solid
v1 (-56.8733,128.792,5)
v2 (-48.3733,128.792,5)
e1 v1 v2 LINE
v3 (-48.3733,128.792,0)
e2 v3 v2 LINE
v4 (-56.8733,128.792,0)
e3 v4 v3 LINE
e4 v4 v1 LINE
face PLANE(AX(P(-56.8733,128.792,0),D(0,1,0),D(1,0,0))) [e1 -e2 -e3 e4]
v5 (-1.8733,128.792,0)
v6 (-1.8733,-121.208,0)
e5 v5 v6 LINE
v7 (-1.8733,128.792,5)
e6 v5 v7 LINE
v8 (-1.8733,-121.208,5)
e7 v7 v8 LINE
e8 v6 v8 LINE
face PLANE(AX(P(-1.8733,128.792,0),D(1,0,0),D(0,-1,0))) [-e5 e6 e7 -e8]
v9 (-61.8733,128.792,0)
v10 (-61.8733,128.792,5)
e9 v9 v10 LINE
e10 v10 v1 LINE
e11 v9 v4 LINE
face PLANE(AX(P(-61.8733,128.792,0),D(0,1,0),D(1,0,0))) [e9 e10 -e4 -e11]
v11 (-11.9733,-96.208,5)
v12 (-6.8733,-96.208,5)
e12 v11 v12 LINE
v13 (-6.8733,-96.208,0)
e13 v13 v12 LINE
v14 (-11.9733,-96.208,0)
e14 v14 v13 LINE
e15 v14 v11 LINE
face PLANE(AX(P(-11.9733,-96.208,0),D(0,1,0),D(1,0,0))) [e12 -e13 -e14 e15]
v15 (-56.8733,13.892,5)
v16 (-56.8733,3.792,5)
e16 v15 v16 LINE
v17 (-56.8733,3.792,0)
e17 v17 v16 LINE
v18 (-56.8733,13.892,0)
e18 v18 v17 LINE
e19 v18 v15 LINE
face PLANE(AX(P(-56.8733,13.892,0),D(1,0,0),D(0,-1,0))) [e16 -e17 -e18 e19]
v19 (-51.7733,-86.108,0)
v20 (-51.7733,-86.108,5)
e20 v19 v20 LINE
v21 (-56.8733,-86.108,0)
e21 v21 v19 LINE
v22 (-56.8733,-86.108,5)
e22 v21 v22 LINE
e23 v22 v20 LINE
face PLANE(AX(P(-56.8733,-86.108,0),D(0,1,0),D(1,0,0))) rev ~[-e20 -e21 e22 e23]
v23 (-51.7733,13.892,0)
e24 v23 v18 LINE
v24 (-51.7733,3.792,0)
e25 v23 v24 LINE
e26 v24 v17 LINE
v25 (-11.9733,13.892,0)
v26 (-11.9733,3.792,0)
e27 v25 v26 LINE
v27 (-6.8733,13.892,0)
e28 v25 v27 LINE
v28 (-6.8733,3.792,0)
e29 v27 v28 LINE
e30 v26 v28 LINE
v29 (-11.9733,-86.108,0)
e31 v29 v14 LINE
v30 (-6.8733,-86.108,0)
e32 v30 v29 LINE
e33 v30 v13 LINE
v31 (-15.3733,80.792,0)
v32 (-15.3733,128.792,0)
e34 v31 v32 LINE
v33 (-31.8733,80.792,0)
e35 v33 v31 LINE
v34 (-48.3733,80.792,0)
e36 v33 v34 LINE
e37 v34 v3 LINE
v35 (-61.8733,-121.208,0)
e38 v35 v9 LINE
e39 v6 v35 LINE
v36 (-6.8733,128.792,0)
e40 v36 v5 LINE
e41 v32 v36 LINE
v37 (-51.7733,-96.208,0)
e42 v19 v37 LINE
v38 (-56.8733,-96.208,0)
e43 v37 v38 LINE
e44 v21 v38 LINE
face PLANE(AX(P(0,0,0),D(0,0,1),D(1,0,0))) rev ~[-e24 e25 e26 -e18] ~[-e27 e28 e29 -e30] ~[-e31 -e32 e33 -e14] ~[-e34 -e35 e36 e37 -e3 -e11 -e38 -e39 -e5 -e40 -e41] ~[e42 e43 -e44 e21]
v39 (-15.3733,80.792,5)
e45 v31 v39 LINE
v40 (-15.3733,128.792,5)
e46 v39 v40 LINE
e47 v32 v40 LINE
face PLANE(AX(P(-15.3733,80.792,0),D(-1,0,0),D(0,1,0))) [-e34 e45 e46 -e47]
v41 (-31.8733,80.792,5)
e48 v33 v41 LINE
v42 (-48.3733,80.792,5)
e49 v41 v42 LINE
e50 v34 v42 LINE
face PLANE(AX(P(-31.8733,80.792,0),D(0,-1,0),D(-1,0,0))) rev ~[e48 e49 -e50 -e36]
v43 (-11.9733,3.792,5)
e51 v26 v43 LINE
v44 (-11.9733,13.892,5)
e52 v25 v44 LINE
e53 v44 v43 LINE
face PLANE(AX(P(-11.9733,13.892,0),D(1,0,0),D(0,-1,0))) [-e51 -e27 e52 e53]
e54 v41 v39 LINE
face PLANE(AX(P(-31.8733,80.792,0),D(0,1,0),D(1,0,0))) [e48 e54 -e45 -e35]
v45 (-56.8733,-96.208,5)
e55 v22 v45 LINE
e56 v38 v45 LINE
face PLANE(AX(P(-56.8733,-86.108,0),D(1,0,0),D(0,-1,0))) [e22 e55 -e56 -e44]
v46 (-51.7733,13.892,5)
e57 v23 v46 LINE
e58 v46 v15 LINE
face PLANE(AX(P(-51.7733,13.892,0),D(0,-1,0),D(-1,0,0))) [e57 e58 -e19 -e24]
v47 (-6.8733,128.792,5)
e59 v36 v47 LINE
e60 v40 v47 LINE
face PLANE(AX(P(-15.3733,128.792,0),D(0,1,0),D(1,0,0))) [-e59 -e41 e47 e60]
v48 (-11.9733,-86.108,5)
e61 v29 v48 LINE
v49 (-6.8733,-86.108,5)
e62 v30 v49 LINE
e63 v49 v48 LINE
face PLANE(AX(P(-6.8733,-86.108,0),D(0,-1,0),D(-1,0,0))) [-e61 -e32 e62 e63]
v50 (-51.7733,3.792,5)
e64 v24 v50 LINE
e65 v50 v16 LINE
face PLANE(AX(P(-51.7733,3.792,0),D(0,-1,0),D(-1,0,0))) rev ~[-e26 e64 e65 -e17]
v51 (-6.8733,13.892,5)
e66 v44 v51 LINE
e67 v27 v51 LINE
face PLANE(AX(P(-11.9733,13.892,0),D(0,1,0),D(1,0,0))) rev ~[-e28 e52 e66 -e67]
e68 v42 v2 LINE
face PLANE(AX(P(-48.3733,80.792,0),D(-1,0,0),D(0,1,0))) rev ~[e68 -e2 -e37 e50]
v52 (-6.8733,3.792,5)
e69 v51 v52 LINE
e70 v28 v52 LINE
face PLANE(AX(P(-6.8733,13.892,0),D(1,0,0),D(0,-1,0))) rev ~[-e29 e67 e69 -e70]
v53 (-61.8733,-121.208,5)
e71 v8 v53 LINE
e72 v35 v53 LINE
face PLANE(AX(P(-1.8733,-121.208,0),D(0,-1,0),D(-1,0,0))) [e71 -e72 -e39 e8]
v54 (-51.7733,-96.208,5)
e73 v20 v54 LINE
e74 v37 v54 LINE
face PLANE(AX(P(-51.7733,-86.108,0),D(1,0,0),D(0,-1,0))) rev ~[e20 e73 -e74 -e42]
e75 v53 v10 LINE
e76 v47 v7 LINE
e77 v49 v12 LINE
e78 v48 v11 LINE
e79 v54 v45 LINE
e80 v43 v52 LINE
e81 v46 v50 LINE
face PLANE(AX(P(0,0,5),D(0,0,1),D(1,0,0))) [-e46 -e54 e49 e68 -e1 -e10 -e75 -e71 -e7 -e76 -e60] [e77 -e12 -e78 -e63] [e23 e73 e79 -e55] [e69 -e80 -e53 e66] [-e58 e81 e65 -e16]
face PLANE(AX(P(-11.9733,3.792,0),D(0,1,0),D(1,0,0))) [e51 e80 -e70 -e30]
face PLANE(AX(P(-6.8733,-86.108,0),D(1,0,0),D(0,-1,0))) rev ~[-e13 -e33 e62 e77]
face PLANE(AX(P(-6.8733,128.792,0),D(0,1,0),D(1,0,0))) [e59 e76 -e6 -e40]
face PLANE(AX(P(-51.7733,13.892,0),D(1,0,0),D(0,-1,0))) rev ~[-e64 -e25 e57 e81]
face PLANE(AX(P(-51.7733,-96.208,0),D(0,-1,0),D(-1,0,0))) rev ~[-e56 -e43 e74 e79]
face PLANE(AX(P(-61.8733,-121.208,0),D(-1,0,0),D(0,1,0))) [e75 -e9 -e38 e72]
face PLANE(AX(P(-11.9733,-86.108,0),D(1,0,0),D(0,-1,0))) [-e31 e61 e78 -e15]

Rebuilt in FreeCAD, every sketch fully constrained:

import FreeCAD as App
import Part
import Sketcher

V = App.Vector

doc = App.newDocument("Part")
params = doc.addObject("Spreadsheet::Sheet", "Params")
for row, (alias, value) in enumerate([
    ("sketch1_width", "60 mm"),
    ("sketch1_height", "48 mm"),
    ("sketch1_width2", "33 mm"),
    ("sketch1_height2", "250 mm"),
    ("sketch1_height3", "10.1 mm"),
    ("pad1_length", "5 mm"),
], start=1):
    params.set(f"A{row}", alias)
    params.set(f"B{row}", "=" + value)
    params.setAlias(f"B{row}", alias)

body = doc.addObject("PartDesign::Body", "Body")

# Sketch on XY plane
sketch1 = doc.addObject("Sketcher::SketchObject", "Sketch")
body.addObject(sketch1)
sketch1.AttachmentSupport = (doc.XY_Plane, [""])
sketch1.MapMode = "FlatFace"
sketch1.addGeometry(Part.LineSegment(V(-62, 129, 0), V(-62, -121, 0)), False)
sketch1.addGeometry(Part.LineSegment(V(-62, -121, 0), V(-2, -121, 0)), False)
sketch1.addGeometry(Part.LineSegment(V(-2, -121, 0), V(-2, 129, 0)), False)
sketch1.addGeometry(Part.LineSegment(V(-2, 129, 0), V(-15, 129, 0)), False)
sketch1.addGeometry(Part.LineSegment(V(-15, 129, 0), V(-15, 81, 0)), False)
sketch1.addGeometry(Part.LineSegment(V(-15, 81, 0), V(-48, 81, 0)), False)
sketch1.addGeometry(Part.LineSegment(V(-48, 81, 0), V(-48, 129, 0)), False)
sketch1.addGeometry(Part.LineSegment(V(-48, 129, 0), V(-62, 129, 0)), False)
sketch1.addGeometry(Part.LineSegment(V(-57, -96, 0), V(-57, -86, 0)), False)
sketch1.addGeometry(Part.LineSegment(V(-57, -86, 0), V(-52, -86, 0)), False)
sketch1.addGeometry(Part.LineSegment(V(-52, -86, 0), V(-52, -96, 0)), False)
sketch1.addGeometry(Part.LineSegment(V(-52, -96, 0), V(-57, -96, 0)), False)
sketch1.addGeometry(Part.LineSegment(V(-12, -86, 0), V(-7, -86, 0)), False)
sketch1.addGeometry(Part.LineSegment(V(-7, -86, 0), V(-7, -96, 0)), False)
sketch1.addGeometry(Part.LineSegment(V(-7, -96, 0), V(-12, -96, 0)), False)
sketch1.addGeometry(Part.LineSegment(V(-12, -96, 0), V(-12, -86, 0)), False)
sketch1.addGeometry(Part.LineSegment(V(-57, 14, 0), V(-52, 14, 0)), False)
sketch1.addGeometry(Part.LineSegment(V(-52, 14, 0), V(-52, 4, 0)), False)
sketch1.addGeometry(Part.LineSegment(V(-52, 4, 0), V(-57, 4, 0)), False)
sketch1.addGeometry(Part.LineSegment(V(-57, 4, 0), V(-57, 14, 0)), False)
sketch1.addGeometry(Part.LineSegment(V(-12, 4, 0), V(-12, 14, 0)), False)
sketch1.addGeometry(Part.LineSegment(V(-12, 14, 0), V(-7, 14, 0)), False)
sketch1.addGeometry(Part.LineSegment(V(-7, 14, 0), V(-7, 4, 0)), False)
sketch1.addGeometry(Part.LineSegment(V(-7, 4, 0), V(-12, 4, 0)), False)
sketch1.addConstraint(Sketcher.Constraint("Coincident", 0, 2, 1, 1))
sketch1.addConstraint(Sketcher.Constraint("Coincident", 1, 2, 2, 1))
sketch1.addConstraint(Sketcher.Constraint("Coincident", 2, 2, 3, 1))
sketch1.addConstraint(Sketcher.Constraint("Coincident", 3, 2, 4, 1))
sketch1.addConstraint(Sketcher.Constraint("Coincident", 4, 2, 5, 1))
sketch1.addConstraint(Sketcher.Constraint("Coincident", 5, 2, 6, 1))
sketch1.addConstraint(Sketcher.Constraint("Coincident", 6, 2, 7, 1))
sketch1.addConstraint(Sketcher.Constraint("Coincident", 7, 2, 0, 1))
sketch1.addConstraint(Sketcher.Constraint("Coincident", 8, 2, 9, 1))
sketch1.addConstraint(Sketcher.Constraint("Coincident", 9, 2, 10, 1))
sketch1.addConstraint(Sketcher.Constraint("Coincident", 10, 2, 11, 1))
sketch1.addConstraint(Sketcher.Constraint("Coincident", 11, 2, 8, 1))
sketch1.addConstraint(Sketcher.Constraint("Coincident", 12, 2, 13, 1))
sketch1.addConstraint(Sketcher.Constraint("Coincident", 13, 2, 14, 1))
sketch1.addConstraint(Sketcher.Constraint("Coincident", 14, 2, 15, 1))
sketch1.addConstraint(Sketcher.Constraint("Coincident", 15, 2, 12, 1))
sketch1.addConstraint(Sketcher.Constraint("Coincident", 16, 2, 17, 1))
sketch1.addConstraint(Sketcher.Constraint("Coincident", 17, 2, 18, 1))
sketch1.addConstraint(Sketcher.Constraint("Coincident", 18, 2, 19, 1))
sketch1.addConstraint(Sketcher.Constraint("Coincident", 19, 2, 16, 1))
sketch1.addConstraint(Sketcher.Constraint("Coincident", 20, 2, 21, 1))
sketch1.addConstraint(Sketcher.Constraint("Coincident", 21, 2, 22, 1))
sketch1.addConstraint(Sketcher.Constraint("Coincident", 22, 2, 23, 1))
sketch1.addConstraint(Sketcher.Constraint("Coincident", 23, 2, 20, 1))
sketch1.addConstraint(Sketcher.Constraint("Vertical", 0))
sketch1.addConstraint(Sketcher.Constraint("Horizontal", 1))
sketch1.addConstraint(Sketcher.Constraint("Vertical", 2))
sketch1.addConstraint(Sketcher.Constraint("Horizontal", 3))
sketch1.addConstraint(Sketcher.Constraint("Vertical", 4))
sketch1.addConstraint(Sketcher.Constraint("Horizontal", 5))
sketch1.addConstraint(Sketcher.Constraint("Vertical", 6))
sketch1.addConstraint(Sketcher.Constraint("Horizontal", 7))
sketch1.addConstraint(Sketcher.Constraint("Vertical", 8))
sketch1.addConstraint(Sketcher.Constraint("Horizontal", 9))
sketch1.addConstraint(Sketcher.Constraint("Vertical", 10))
sketch1.addConstraint(Sketcher.Constraint("Horizontal", 11))
sketch1.addConstraint(Sketcher.Constraint("Horizontal", 12))
sketch1.addConstraint(Sketcher.Constraint("Vertical", 13))
sketch1.addConstraint(Sketcher.Constraint("Horizontal", 14))
sketch1.addConstraint(Sketcher.Constraint("Vertical", 15))
sketch1.addConstraint(Sketcher.Constraint("Horizontal", 16))
sketch1.addConstraint(Sketcher.Constraint("Vertical", 17))
sketch1.addConstraint(Sketcher.Constraint("Horizontal", 18))
sketch1.addConstraint(Sketcher.Constraint("Vertical", 19))
sketch1.addConstraint(Sketcher.Constraint("Vertical", 20))
sketch1.addConstraint(Sketcher.Constraint("Horizontal", 21))
sketch1.addConstraint(Sketcher.Constraint("Vertical", 22))
sketch1.addConstraint(Sketcher.Constraint("Horizontal", 23))
sketch1.addConstraint(Sketcher.Constraint("Horizontal", 3, 2, 6, 2))
sketch1.addConstraint(Sketcher.Constraint("Horizontal", 9, 2, 12, 2))
sketch1.addConstraint(Sketcher.Constraint("Horizontal", 11, 2, 13, 2))
sketch1.addConstraint(Sketcher.Constraint("Horizontal", 19, 2, 20, 2))
sketch1.addConstraint(Sketcher.Constraint("Horizontal", 18, 2, 22, 2))
sketch1.addConstraint(Sketcher.Constraint("Vertical", 10, 2, 16, 2))
sketch1.addConstraint(Sketcher.Constraint("Vertical", 11, 2, 18, 2))
sketch1.addConstraint(Sketcher.Constraint("Vertical", 15, 2, 20, 2))
sketch1.addConstraint(Sketcher.Constraint("Vertical", 13, 2, 21, 2))
sketch1.addConstraint(Sketcher.Constraint("Equal", 3, 7))
sketch1.addConstraint(Sketcher.Constraint("Equal", 11, 12))
sketch1.addConstraint(Sketcher.Constraint("Equal", 15, 17))
sketch1.addConstraint(Sketcher.Constraint("DistanceX", 1, 1, 1, 2, 60.0))
sketch1.addConstraint(Sketcher.Constraint("DistanceY", 4, 2, 4, 1, 48.0))
sketch1.addConstraint(Sketcher.Constraint("DistanceX", 0, 2, 8, 2, 5.0))
sketch1.addConstraint(Sketcher.Constraint("DistanceY", 0, 2, 10, 2, 25.0))
sketch1.addConstraint(Sketcher.Constraint("DistanceX", 12, 2, 1, 2, 5.0))
sketch1.addConstraint(Sketcher.Constraint("DistanceX", 10, 2, 14, 2, 39.8))
sketch1.addConstraint(Sketcher.Constraint("DistanceX", 5, 2, 5, 1, 33.0))
sketch1.addConstraint(Sketcher.Constraint("DistanceY", 0, 2, 0, 1, 250.0))
sketch1.addConstraint(Sketcher.Constraint("DistanceY", 8, 1, 8, 2, 10.1))
sketch1.addConstraint(Sketcher.Constraint("DistanceY", 9, 2, 16, 2, 100.0))
sketch1.addConstraint(Sketcher.Constraint("DistanceY", 0, 2, -1, 1, 121.208))
sketch1.addConstraint(Sketcher.Constraint("DistanceX", 0, 2, -1, 1, 61.8733))
sketch1.setExpression("Constraints[60]", "Params.sketch1_width")
sketch1.setExpression("Constraints[61]", "Params.sketch1_height")
sketch1.setExpression("Constraints[66]", "Params.sketch1_width2")
sketch1.setExpression("Constraints[67]", "Params.sketch1_height2")
sketch1.setExpression("Constraints[68]", "Params.sketch1_height3")
pad1 = doc.addObject("PartDesign::Pad", "Pad")
body.addObject(pad1)
pad1.Profile = sketch1
pad1.setExpression("Length", "Params.pad1_length")

doc.recompute()
